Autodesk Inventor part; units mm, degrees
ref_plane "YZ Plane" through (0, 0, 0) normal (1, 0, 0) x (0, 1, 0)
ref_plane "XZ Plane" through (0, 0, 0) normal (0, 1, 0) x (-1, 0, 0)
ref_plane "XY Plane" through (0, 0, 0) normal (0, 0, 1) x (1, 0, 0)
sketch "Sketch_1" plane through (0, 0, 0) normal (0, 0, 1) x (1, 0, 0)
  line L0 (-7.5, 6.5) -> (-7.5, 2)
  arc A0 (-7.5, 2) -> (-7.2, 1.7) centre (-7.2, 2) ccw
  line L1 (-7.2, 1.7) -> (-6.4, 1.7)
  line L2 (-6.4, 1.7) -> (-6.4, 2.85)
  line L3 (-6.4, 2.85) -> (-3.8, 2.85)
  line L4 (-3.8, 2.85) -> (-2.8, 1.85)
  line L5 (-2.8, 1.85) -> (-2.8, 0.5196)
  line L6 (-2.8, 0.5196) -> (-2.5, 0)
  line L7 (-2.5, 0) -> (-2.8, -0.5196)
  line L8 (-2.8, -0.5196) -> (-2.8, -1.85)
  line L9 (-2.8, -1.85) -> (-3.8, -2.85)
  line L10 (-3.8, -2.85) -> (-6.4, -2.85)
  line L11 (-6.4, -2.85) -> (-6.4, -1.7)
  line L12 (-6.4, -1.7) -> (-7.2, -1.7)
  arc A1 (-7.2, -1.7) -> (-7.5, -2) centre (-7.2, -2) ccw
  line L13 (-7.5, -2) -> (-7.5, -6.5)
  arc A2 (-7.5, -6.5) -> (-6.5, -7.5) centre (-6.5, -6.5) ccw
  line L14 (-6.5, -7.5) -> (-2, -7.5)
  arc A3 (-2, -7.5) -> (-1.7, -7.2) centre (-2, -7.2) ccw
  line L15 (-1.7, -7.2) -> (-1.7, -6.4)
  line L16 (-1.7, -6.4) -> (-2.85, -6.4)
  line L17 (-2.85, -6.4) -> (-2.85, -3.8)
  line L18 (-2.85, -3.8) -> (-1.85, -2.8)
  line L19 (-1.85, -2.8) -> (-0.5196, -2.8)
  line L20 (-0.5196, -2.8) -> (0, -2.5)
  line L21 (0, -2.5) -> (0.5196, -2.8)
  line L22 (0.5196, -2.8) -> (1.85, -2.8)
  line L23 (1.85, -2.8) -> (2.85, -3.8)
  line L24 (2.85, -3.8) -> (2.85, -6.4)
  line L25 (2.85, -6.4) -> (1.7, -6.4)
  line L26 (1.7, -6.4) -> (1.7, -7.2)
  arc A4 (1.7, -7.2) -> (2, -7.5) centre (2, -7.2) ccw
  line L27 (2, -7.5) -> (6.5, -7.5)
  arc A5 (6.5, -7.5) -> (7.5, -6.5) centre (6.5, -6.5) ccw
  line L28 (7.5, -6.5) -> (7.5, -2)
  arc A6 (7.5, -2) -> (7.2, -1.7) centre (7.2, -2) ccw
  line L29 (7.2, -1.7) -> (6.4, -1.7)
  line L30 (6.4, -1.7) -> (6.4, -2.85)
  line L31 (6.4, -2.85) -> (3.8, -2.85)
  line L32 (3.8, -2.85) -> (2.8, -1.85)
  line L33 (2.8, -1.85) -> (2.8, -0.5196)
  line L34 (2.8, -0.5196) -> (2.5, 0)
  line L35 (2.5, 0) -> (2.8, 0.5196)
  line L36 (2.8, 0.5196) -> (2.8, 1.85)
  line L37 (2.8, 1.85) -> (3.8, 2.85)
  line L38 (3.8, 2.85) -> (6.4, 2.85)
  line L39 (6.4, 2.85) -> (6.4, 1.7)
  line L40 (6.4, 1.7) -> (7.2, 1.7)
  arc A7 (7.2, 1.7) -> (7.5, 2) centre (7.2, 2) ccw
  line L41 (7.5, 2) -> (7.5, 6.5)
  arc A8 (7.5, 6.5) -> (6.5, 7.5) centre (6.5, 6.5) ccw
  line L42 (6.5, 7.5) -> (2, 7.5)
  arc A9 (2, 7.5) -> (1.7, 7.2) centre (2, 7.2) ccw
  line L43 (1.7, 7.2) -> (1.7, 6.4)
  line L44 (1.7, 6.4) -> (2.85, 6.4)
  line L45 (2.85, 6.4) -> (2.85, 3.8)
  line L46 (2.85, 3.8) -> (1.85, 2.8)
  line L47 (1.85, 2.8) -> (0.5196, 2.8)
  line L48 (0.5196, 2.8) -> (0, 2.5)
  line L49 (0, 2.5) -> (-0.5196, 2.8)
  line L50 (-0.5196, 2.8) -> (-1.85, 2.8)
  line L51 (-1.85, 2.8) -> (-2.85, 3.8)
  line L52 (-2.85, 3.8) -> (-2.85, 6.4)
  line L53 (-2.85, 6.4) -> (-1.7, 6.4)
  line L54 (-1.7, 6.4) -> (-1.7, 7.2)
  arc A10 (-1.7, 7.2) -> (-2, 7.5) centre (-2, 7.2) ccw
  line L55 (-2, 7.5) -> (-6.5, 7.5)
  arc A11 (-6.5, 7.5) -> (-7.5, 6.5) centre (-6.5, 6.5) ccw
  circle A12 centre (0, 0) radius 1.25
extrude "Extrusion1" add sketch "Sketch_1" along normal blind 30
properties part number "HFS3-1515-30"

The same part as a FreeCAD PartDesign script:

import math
import FreeCAD as App
import Part
import Sketcher

V = App.Vector
Q = App.Units.Quantity

doc = App.newDocument("Part")
body = doc.addObject("PartDesign::Body", "Body")

sketch1 = body.newObject("Sketcher::SketchObject", "Sketch")
sketch1.AttachmentSupport = (doc.getObject("XY_Plane"), [""])
sketch1.MapMode = "FlatFace"
sketch1.addGeometry([
    Part.ArcOfCircle(Part.Circle(V(-6.5, 6.5, 0), V(0, 0, 1), 1), math.radians(90), math.radians(180)),
    Part.LineSegment(V(-7.5, 6.5, 0), V(-7.5, 2, 0)),
    Part.ArcOfCircle(Part.Circle(V(-7.2, 2, 0), V(0, 0, 1), 0.3), math.radians(180), math.radians(270)),
    Part.LineSegment(V(-7.2, 1.7, 0), V(-6.4, 1.7, 0)),
    Part.LineSegment(V(-6.4, 1.7, 0), V(-6.4, 2.85, 0)),
    Part.LineSegment(V(-6.4, 2.85, 0), V(-3.8, 2.85, 0)),
    Part.LineSegment(V(-3.8, 2.85, 0), V(-2.8, 1.85, 0)),
    Part.LineSegment(V(-2.8, 1.85, 0), V(-2.8, 0.52, 0)),
    Part.LineSegment(V(-2.8, 0.52, 0), V(-2.5, 0, 0)),
    Part.LineSegment(V(-2.5, 0, 0), V(-2.8, -0.52, 0)),
    Part.LineSegment(V(-2.8, -0.52, 0), V(-2.8, -1.85, 0)),
    Part.LineSegment(V(-2.8, -1.85, 0), V(-3.8, -2.85, 0)),
    Part.LineSegment(V(-3.8, -2.85, 0), V(-6.4, -2.85, 0)),
    Part.LineSegment(V(-6.4, -2.85, 0), V(-6.4, -1.7, 0)),
    Part.LineSegment(V(-6.4, -1.7, 0), V(-7.2, -1.7, 0)),
    Part.ArcOfCircle(Part.Circle(V(-7.2, -2, 0), V(0, 0, 1), 0.3), math.radians(90), math.radians(180)),
    Part.LineSegment(V(-7.5, -2, 0), V(-7.5, -6.5, 0)),
    Part.ArcOfCircle(Part.Circle(V(-6.5, -6.5, 0), V(0, 0, 1), 1), math.radians(180), math.radians(270)),
    Part.LineSegment(V(-6.5, -7.5, 0), V(-2, -7.5, 0)),
    Part.ArcOfCircle(Part.Circle(V(-2, -7.2, 0), V(0, 0, 1), 0.3), math.radians(-90), math.radians(0)),
    Part.LineSegment(V(-1.7, -7.2, 0), V(-1.7, -6.4, 0)),
    Part.LineSegment(V(-1.7, -6.4, 0), V(-2.85, -6.4, 0)),
    Part.LineSegment(V(-2.85, -6.4, 0), V(-2.85, -3.8, 0)),
    Part.LineSegment(V(-2.85, -3.8, 0), V(-1.85, -2.8, 0)),
    Part.LineSegment(V(-1.85, -2.8, 0), V(-0.52, -2.8, 0)),
    Part.LineSegment(V(-0.52, -2.8, 0), V(0, -2.5, 0)),
    Part.LineSegment(V(0, -2.5, 0), V(0.52, -2.8, 0)),
    Part.LineSegment(V(0.52, -2.8, 0), V(1.85, -2.8, 0)),
    Part.LineSegment(V(1.85, -2.8, 0), V(2.85, -3.8, 0)),
    Part.LineSegment(V(2.85, -3.8, 0), V(2.85, -6.4, 0)),
    Part.LineSegment(V(2.85, -6.4, 0), V(1.7, -6.4, 0)),
    Part.LineSegment(V(1.7, -6.4, 0), V(1.7, -7.2, 0)),
    Part.ArcOfCircle(Part.Circle(V(2, -7.2, 0), V(0, 0, 1), 0.3), math.radians(180), math.radians(270)),
    Part.LineSegment(V(2, -7.5, 0), V(6.5, -7.5, 0)),
    Part.ArcOfCircle(Part.Circle(V(6.5, -6.5, 0), V(0, 0, 1), 1), math.radians(-90), math.radians(0)),
    Part.LineSegment(V(7.5, -6.5, 0), V(7.5, -2, 0)),
    Part.ArcOfCircle(Part.Circle(V(7.2, -2, 0), V(0, 0, 1), 0.3), math.radians(0), math.radians(90)),
    Part.LineSegment(V(7.2, -1.7, 0), V(6.4, -1.7, 0)),
    Part.LineSegment(V(6.4, -1.7, 0), V(6.4, -2.85, 0)),
    Part.LineSegment(V(6.4, -2.85, 0), V(3.8, -2.85, 0)),
    Part.LineSegment(V(3.8, -2.85, 0), V(2.8, -1.85, 0)),
    Part.LineSegment(V(2.8, -1.85, 0), V(2.8, -0.52, 0)),
    Part.LineSegment(V(2.8, -0.52, 0), V(2.5, 0, 0)),
    Part.LineSegment(V(2.5, 0, 0), V(2.8, 0.52, 0)),
    Part.LineSegment(V(2.8, 0.52, 0), V(2.8, 1.85, 0)),
    Part.LineSegment(V(2.8, 1.85, 0), V(3.8, 2.85, 0)),
    Part.LineSegment(V(3.8, 2.85, 0), V(6.4, 2.85, 0)),
    Part.LineSegment(V(6.4, 2.85, 0), V(6.4, 1.7, 0)),
    Part.LineSegment(V(6.4, 1.7, 0), V(7.2, 1.7, 0)),
    Part.ArcOfCircle(Part.Circle(V(7.2, 2, 0), V(0, 0, 1), 0.3), math.radians(-90), math.radians(0)),
    Part.LineSegment(V(7.5, 2, 0), V(7.5, 6.5, 0)),
    Part.ArcOfCircle(Part.Circle(V(6.5, 6.5, 0), V(0, 0, 1), 1), math.radians(0), math.radians(90)),
    Part.LineSegment(V(6.5, 7.5, 0), V(2, 7.5, 0)),
    Part.ArcOfCircle(Part.Circle(V(2, 7.2, 0), V(0, 0, 1), 0.3), math.radians(90), math.radians(180)),
    Part.LineSegment(V(1.7, 7.2, 0), V(1.7, 6.4, 0)),
    Part.LineSegment(V(1.7, 6.4, 0), V(2.85, 6.4, 0)),
    Part.LineSegment(V(2.85, 6.4, 0), V(2.85, 3.8, 0)),
    Part.LineSegment(V(2.85, 3.8, 0), V(1.85, 2.8, 0)),
    Part.LineSegment(V(1.85, 2.8, 0), V(0.52, 2.8, 0)),
    Part.LineSegment(V(0.52, 2.8, 0), V(0, 2.5, 0)),
    Part.LineSegment(V(0, 2.5, 0), V(-0.52, 2.8, 0)),
    Part.LineSegment(V(-0.52, 2.8, 0), V(-1.85, 2.8, 0)),
    Part.LineSegment(V(-1.85, 2.8, 0), V(-2.85, 3.8, 0)),
    Part.LineSegment(V(-2.85, 3.8, 0), V(-2.85, 6.4, 0)),
    Part.LineSegment(V(-2.85, 6.4, 0), V(-1.7, 6.4, 0)),
    Part.LineSegment(V(-1.7, 6.4, 0), V(-1.7, 7.2, 0)),
    Part.ArcOfCircle(Part.Circle(V(-2, 7.2, 0), V(0, 0, 1), 0.3), math.radians(0), math.radians(90)),
    Part.LineSegment(V(-2, 7.5, 0), V(-6.5, 7.5, 0)),
    Part.Circle(V(0, 0, 0), V(0, 0, 1), 1.25),
], False)
sketch1.addConstraint([
    Sketcher.Constraint("Tangent", 0, 2, 1, 1),
    Sketcher.Constraint("Tangent", 1, 2, 2, 1),
    Sketcher.Constraint("Tangent", 2, 2, 3, 1),
    Sketcher.Constraint("Coincident", 3, 2, 4, 1),
    Sketcher.Constraint("Coincident", 4, 2, 5, 1),
    Sketcher.Constraint("Coincident", 5, 2, 6, 1),
    Sketcher.Constraint("Coincident", 6, 2, 7, 1),
    Sketcher.Constraint("Coincident", 7, 2, 8, 1),
    Sketcher.Constraint("Coincident", 8, 2, 9, 1),
    Sketcher.Constraint("Coincident", 9, 2, 10, 1),
    Sketcher.Constraint("Coincident", 10, 2, 11, 1),
    Sketcher.Constraint("Coincident", 11, 2, 12, 1),
    Sketcher.Constraint("Coincident", 12, 2, 13, 1),
    Sketcher.Constraint("Coincident", 13, 2, 14, 1),
    Sketcher.Constraint("Tangent", 14, 2, 15, 1),
    Sketcher.Constraint("Tangent", 15, 2, 16, 1),
    Sketcher.Constraint("Tangent", 16, 2, 17, 1),
    Sketcher.Constraint("Tangent", 17, 2, 18, 1),
    Sketcher.Constraint("Tangent", 18, 2, 19, 1),
    Sketcher.Constraint("Tangent", 19, 2, 20, 1),
    Sketcher.Constraint("Coincident", 20, 2, 21, 1),
    Sketcher.Constraint("Coincident", 21, 2, 22, 1),
    Sketcher.Constraint("Coincident", 22, 2, 23, 1),
    Sketcher.Constraint("Coincident", 23, 2, 24, 1),
    Sketcher.Constraint("Coincident", 24, 2, 25, 1),
    Sketcher.Constraint("Coincident", 25, 2, 26, 1),
    Sketcher.Constraint("Coincident", 26, 2, 27, 1),
    Sketcher.Constraint("Coincident", 27, 2, 28, 1),
    Sketcher.Constraint("Coincident", 28, 2, 29, 1),
    Sketcher.Constraint("Coincident", 29, 2, 30, 1),
    Sketcher.Constraint("Coincident", 30, 2, 31, 1),
    Sketcher.Constraint("Tangent", 31, 2, 32, 1),
    Sketcher.Constraint("Tangent", 32, 2, 33, 1),
    Sketcher.Constraint("Tangent", 33, 2, 34, 1),
    Sketcher.Constraint("Tangent", 34, 2, 35, 1),
    Sketcher.Constraint("Tangent", 35, 2, 36, 1),
    Sketcher.Constraint("Tangent", 36, 2, 37, 1),
    Sketcher.Constraint("Coincident", 37, 2, 38, 1),
    Sketcher.Constraint("Coincident", 38, 2, 39, 1),
    Sketcher.Constraint("Coincident", 39, 2, 40, 1),
    Sketcher.Constraint("Coincident", 40, 2, 41, 1),
    Sketcher.Constraint("Coincident", 41, 2, 42, 1),
    Sketcher.Constraint("Coincident", 42, 2, 43, 1),
    Sketcher.Constraint("Coincident", 43, 2, 44, 1),
    Sketcher.Constraint("Coincident", 44, 2, 45, 1),
    Sketcher.Constraint("Coincident", 45, 2, 46, 1),
    Sketcher.Constraint("Coincident", 46, 2, 47, 1),
    Sketcher.Constraint("Coincident", 47, 2, 48, 1),
    Sketcher.Constraint("Tangent", 48, 2, 49, 1),
    Sketcher.Constraint("Tangent", 49, 2, 50, 1),
    Sketcher.Constraint("Tangent", 50, 2, 51, 1),
    Sketcher.Constraint("Tangent", 51, 2, 52, 1),
    Sketcher.Constraint("Tangent", 52, 2, 53, 1),
    Sketcher.Constraint("Tangent", 53, 2, 54, 1),
    Sketcher.Constraint("Coincident", 54, 2, 55, 1),
    Sketcher.Constraint("Coincident", 55, 2, 56, 1),
    Sketcher.Constraint("Coincident", 56, 2, 57, 1),
    Sketcher.Constraint("Coincident", 57, 2, 58, 1),
    Sketcher.Constraint("Coincident", 58, 2, 59, 1),
    Sketcher.Constraint("Coincident", 59, 2, 60, 1),
    Sketcher.Constraint("Coincident", 60, 2, 61, 1),
    Sketcher.Constraint("Coincident", 61, 2, 62, 1),
    Sketcher.Constraint("Coincident", 62, 2, 63, 1),
    Sketcher.Constraint("Coincident", 63, 2, 64, 1),
    Sketcher.Constraint("Coincident", 64, 2, 65, 1),
    Sketcher.Constraint("Tangent", 65, 2, 66, 1),
    Sketcher.Constraint("Tangent", 66, 2, 67, 1),
    Sketcher.Constraint("Tangent", 67, 2, 0, 1),
    Sketcher.Constraint("Vertical", 1),
    Sketcher.Constraint("Horizontal", 3),
    Sketcher.Constraint("Vertical", 4),
    Sketcher.Constraint("Horizontal", 5),
    Sketcher.Constraint("Vertical", 7),
    Sketcher.Constraint("Vertical", 10),
    Sketcher.Constraint("Horizontal", 12),
    Sketcher.Constraint("Vertical", 13),
    Sketcher.Constraint("Horizontal", 14),
    Sketcher.Constraint("Vertical", 16),
    Sketcher.Constraint("Horizontal", 18),
    Sketcher.Constraint("Vertical", 20),
    Sketcher.Constraint("Horizontal", 21),
    Sketcher.Constraint("Vertical", 22),
    Sketcher.Constraint("Horizontal", 24),
    Sketcher.Constraint("Horizontal", 27),
    Sketcher.Constraint("Vertical", 29),
    Sketcher.Constraint("Horizontal", 30),
    Sketcher.Constraint("Vertical", 31),
    Sketcher.Constraint("Horizontal", 33),
    Sketcher.Constraint("Vertical", 35),
    Sketcher.Constraint("Horizontal", 37),
    Sketcher.Constraint("Vertical", 38),
    Sketcher.Constraint("Horizontal", 39),
    Sketcher.Constraint("Vertical", 41),
    Sketcher.Constraint("Vertical", 44),
    Sketcher.Constraint("Horizontal", 46),
    Sketcher.Constraint("Vertical", 47),
    Sketcher.Constraint("Horizontal", 48),
    Sketcher.Constraint("Vertical", 50),
    Sketcher.Constraint("Horizontal", 52),
    Sketcher.Constraint("Vertical", 54),
    Sketcher.Constraint("Horizontal", 55),
    Sketcher.Constraint("Vertical", 56),
    Sketcher.Constraint("Horizontal", 58),
    Sketcher.Constraint("Horizontal", 61),
    Sketcher.Constraint("Vertical", 63),
    Sketcher.Constraint("Horizontal", 64),
    Sketcher.Constraint("Vertical", 65),
    Sketcher.Constraint("Horizontal", 67),
    Sketcher.Constraint("Coincident", 68, 3, -1, 1),
    Sketcher.Constraint("Equal", 2, 15),
    Sketcher.Constraint("Equal", 0, 17),
    Sketcher.Constraint("Equal", 15, 19),
    Sketcher.Constraint("Equal", 19, 32),
    Sketcher.Constraint("Equal", 17, 34),
    Sketcher.Constraint("Equal", 32, 36),
    Sketcher.Constraint("Equal", 36, 49),
    Sketcher.Constraint("Equal", 34, 51),
    Sketcher.Constraint("Equal", 49, 53),
    Sketcher.Constraint("Equal", 53, 66),
    Sketcher.Constraint("Symmetric", 0, 3, 34, 3, -1, 1),
    Sketcher.Constraint("Symmetric", 15, 3, 49, 3, -1, 1),
    Sketcher.Constraint("Symmetric", 19, 3, 53, 3, -1, 1),
    Sketcher.Constraint("Symmetric", 3, 2, 37, 2, -1, 1),
    Sketcher.Constraint("Symmetric", 5, 2, 39, 2, -1, 1),
    Sketcher.Constraint("Symmetric", 6, 2, 40, 2, -1, 1),
    Sketcher.Constraint("Symmetric", 8, 2, 42, 2, -1, 1),
    Sketcher.Constraint("Symmetric", 9, 2, 43, 2, -1, 1),
    Sketcher.Constraint("Symmetric", 11, 2, 45, 2, -1, 1),
    Sketcher.Constraint("Symmetric", 21, 2, 55, 2, -1, 1),
    Sketcher.Constraint("Symmetric", 23, 2, 57, 2, -1, 1),
    Sketcher.Constraint("Symmetric", 25, 2, 59, 2, -1, 1),
    Sketcher.Constraint("Symmetric", 26, 2, 60, 2, -1, 1),
    Sketcher.Constraint("Symmetric", 28, 2, 62, 2, -1, 1),
    Sketcher.Constraint("Symmetric", 30, 2, 64, 2, -1, 1),
    Sketcher.Constraint("Symmetric", 19, 3, 32, 3, -2),
    Sketcher.Constraint("Symmetric", 15, 3, 36, 3, -2),
    Sketcher.Constraint("Symmetric", 24, 2, 26, 2, -2),
    Sketcher.Constraint("Symmetric", 22, 2, 28, 2, -2),
    Sketcher.Constraint("Symmetric", 12, 2, 38, 2, -2),
    Sketcher.Constraint("Symmetric", 10, 2, 40, 2, -2),
    Sketcher.Constraint("PointOnObject", 8, 2, -1),
    Sketcher.Constraint("PointOnObject", 25, 2, -2),
    Sketcher.Constraint("Perpendicular", 6, 11),
    Sketcher.Constraint("Parallel", 11, 23),
    Sketcher.Constraint("Perpendicular", 8, 25),
    Sketcher.Constraint("Perpendicular", 9, 26),
    Sketcher.Constraint("Perpendicular", 23, 28),
    Sketcher.Constraint("Perpendicular", 25, 42),
    Sketcher.Constraint("Perpendicular", 40, 45),
    Sketcher.Constraint("Parallel", 45, 57),
    Sketcher.Constraint("Perpendicular", 42, 59),
    Sketcher.Constraint("Perpendicular", 57, 62),
    Sketcher.Constraint("Horizontal", 21, 2, 29, 2),
    Sketcher.Constraint("Vertical", 5, 2, 11, 2),
    Sketcher.Constraint("Vertical", 38, 2, 46, 2),
    Sketcher.Constraint("Equal", 67, 1),
    Sketcher.Constraint("Equal", 64, 4),
    Sketcher.Constraint("Equal", 61, 7),
    Sketcher.Constraint("Equal", 48, 20),
    Sketcher.Constraint("Equal", 46, 22),
    Sketcher.Constraint("Equal", 11, 23),
    Sketcher.Constraint("Equal", 9, 25),
    Sketcher.Constraint("Radius", 0, Q("1 mm")),
    Sketcher.Constraint("Diameter", 68, Q("2.5 mm")),
    Sketcher.Constraint("Radius", 2, Q("0.3 mm")),
    Sketcher.Constraint("Angle", 8, Q("-59.9993 deg")),
    Sketcher.Constraint("DistanceX", 3, 1, 3, 2, Q("0.8 mm")),
    Sketcher.Constraint("DistanceX", 5, 1, 5, 2, Q("2.6 mm")),
    Sketcher.Constraint("DistanceX", 18, 1, 18, 2, Q("4.5 mm")),
    Sketcher.Constraint("DistanceY", -1, 1, 2, 3, Q("2 mm")),
    Sketcher.Constraint("Distance", 8, Q("0.6 mm")),
    Sketcher.Constraint("DistanceX", 21, 2, 21, 1, Q("1.15 mm")),
    Sketcher.Constraint("DistanceX", 6, 2, -1, 1, Q("2.8 mm")),
])
pad1 = body.newObject("PartDesign::Pad", "Pad")
pad1.Profile = sketch1
pad1.Length = 30

doc.recompute()
